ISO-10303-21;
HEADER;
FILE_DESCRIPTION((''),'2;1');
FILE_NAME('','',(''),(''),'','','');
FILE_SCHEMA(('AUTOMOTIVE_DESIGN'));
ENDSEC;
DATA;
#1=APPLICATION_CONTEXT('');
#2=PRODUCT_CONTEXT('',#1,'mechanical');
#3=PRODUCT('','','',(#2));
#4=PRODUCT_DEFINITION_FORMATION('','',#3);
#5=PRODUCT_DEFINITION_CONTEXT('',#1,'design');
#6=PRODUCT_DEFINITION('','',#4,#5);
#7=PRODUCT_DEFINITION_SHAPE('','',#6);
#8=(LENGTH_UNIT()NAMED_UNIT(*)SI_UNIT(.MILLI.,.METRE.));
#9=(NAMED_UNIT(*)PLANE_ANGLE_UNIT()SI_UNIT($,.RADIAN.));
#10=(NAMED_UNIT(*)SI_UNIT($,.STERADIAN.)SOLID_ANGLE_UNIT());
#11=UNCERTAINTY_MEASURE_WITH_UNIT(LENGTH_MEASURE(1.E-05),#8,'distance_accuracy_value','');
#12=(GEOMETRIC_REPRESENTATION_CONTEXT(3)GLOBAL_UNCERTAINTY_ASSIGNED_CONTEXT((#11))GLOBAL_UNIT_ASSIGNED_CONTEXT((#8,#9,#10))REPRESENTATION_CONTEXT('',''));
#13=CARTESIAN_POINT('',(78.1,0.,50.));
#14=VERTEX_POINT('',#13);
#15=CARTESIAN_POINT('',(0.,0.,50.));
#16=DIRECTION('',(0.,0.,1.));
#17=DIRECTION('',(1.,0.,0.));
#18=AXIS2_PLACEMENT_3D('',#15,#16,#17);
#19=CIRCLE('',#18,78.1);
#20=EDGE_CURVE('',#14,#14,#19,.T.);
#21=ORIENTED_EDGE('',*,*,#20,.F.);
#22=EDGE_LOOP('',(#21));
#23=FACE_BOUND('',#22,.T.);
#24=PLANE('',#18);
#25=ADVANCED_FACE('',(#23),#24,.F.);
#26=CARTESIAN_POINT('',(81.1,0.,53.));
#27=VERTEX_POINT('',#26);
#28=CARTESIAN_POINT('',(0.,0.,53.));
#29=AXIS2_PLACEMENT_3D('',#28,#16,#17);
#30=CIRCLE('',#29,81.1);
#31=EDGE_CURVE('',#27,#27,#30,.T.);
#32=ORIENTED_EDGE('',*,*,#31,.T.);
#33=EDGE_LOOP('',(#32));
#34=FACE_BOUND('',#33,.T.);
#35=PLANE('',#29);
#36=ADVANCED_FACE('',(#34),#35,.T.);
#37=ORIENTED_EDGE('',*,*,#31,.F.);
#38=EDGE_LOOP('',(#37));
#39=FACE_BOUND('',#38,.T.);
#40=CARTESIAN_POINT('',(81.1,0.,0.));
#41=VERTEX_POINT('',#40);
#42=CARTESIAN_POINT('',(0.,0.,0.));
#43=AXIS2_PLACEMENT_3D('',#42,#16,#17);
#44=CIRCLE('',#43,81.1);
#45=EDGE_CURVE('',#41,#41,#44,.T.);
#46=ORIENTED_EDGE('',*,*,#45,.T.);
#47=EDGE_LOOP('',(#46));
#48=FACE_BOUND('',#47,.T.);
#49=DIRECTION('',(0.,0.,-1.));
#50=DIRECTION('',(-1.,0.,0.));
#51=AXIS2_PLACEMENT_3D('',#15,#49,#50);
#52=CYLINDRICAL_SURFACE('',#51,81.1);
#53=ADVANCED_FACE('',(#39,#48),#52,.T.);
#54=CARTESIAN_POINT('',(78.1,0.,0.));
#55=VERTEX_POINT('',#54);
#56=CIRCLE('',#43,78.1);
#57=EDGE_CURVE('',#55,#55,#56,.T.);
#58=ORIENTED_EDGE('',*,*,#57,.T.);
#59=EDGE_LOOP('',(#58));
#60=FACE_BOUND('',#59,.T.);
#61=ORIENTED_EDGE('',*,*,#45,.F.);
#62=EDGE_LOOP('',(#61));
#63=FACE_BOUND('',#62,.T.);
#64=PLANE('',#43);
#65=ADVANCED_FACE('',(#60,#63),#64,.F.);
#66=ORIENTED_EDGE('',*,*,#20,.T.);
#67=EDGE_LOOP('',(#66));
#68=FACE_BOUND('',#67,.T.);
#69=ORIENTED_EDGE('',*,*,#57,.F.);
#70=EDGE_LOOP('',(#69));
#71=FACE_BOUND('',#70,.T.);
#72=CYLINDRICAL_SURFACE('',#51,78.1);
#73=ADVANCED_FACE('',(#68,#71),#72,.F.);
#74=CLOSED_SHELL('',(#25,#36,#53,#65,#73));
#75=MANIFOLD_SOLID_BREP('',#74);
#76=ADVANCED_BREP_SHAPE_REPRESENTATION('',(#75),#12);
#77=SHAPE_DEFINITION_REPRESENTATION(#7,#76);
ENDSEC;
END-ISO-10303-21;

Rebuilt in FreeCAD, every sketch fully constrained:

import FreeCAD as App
import Part
import Sketcher
from FreeCAD import Vector

doc = App.newDocument("Part")
params = doc.addObject("Spreadsheet::Sheet", "Params")
for row, (alias, value) in enumerate([
    ("sketch1_diameter", "162.2 mm"),
    ("sketch1_diameter2", "156.2 mm"),
    ("pad1_length", "50 mm"),
    ("sketch2_diameter", "162.2 mm"),
    ("pad2_length", "3 mm"),
], start=1):
    params.set(f"A{row}", alias)
    params.set(f"B{row}", "=" + value)
    params.setAlias(f"B{row}", alias)

body = doc.addObject("PartDesign::Body", "Body")

# Sketch on XY plane
sketch1 = body.newObject("Sketcher::SketchObject", "Sketch")
sketch1.AttachmentSupport = (doc.getObject("XY_Plane"), [""])
sketch1.MapMode = "FlatFace"
sketch1.addGeometry([
    Part.Circle(Vector(0, 0, 0), Vector(0, 0, 1), 81.1),
    Part.Circle(Vector(0, 0, 0), Vector(0, 0, 1), 78.1),
], False)
sketch1.addConstraint([
    Sketcher.Constraint("Coincident", 0, 3, -1, 1),
    Sketcher.Constraint("Coincident", 1, 3, -1, 1),
    Sketcher.Constraint("Diameter", 0, 162.2),
    Sketcher.Constraint("Diameter", 1, 156.2),
])
sketch1.setExpression("Constraints[2]", "Params.sketch1_diameter")
sketch1.setExpression("Constraints[3]", "Params.sketch1_diameter2")
pad1 = body.newObject("PartDesign::Pad", "Pad")
pad1.Profile = sketch1
pad1.setExpression("Length", "Params.pad1_length")

# Sketch on XY plane
sketch2 = body.newObject("Sketcher::SketchObject", "Sketch001")
sketch2.AttachmentSupport = (doc.getObject("XY_Plane"), [""])
sketch2.MapMode = "FlatFace"
sketch2.AttachmentOffset = App.Placement(Vector(0, 0, 50), App.Rotation())
sketch2.addGeometry(Part.Circle(Vector(0, 0, 0), Vector(0, 0, 1), 81.1), False)
sketch2.addConstraint([
    Sketcher.Constraint("Coincident", 0, 3, -1, 1),
    Sketcher.Constraint("Diameter", 0, 162.2),
])
sketch2.setExpression("Constraints[1]", "Params.sketch2_diameter")
pad2 = body.newObject("PartDesign::Pad", "Pad001")
pad2.Profile = sketch2
pad2.setExpression("Length", "Params.pad2_length")

doc.recompute()
